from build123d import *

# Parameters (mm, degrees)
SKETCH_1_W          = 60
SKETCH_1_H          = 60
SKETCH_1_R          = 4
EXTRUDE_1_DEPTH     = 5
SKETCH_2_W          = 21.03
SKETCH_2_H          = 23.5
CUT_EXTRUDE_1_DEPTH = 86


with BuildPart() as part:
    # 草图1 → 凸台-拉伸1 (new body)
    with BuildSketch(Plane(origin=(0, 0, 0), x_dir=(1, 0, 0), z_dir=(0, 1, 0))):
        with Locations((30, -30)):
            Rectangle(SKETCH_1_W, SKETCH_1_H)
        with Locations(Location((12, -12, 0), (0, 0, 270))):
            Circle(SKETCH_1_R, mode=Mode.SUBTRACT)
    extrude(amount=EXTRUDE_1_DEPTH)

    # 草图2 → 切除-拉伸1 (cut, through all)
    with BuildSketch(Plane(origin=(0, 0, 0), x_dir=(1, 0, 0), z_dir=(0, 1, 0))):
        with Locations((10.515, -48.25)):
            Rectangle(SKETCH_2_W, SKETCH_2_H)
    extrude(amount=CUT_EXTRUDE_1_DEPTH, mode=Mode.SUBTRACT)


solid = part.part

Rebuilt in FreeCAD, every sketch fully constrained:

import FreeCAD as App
import Part
import Sketcher
from FreeCAD import Vector

doc = App.newDocument("Part")
body = doc.addObject("PartDesign::Body", "Body")

# Sketch on XZ plane
sketch1 = body.newObject("Sketcher::SketchObject", "Sketch")
sketch1.AttachmentSupport = (doc.getObject("XZ_Plane"), [""])
sketch1.MapMode = "FlatFace"
sketch1.addGeometry(Part.LineSegment(Vector(0, 0, 0), Vector(0, 60, 0)), False)
sketch1.addGeometry(Part.LineSegment(Vector(0, 60, 0), Vector(60, 60, 0)), False)
sketch1.addGeometry(Part.LineSegment(Vector(60, 60, 0), Vector(60, 0, 0)), False)
sketch1.addGeometry(Part.LineSegment(Vector(60, 0, 0), Vector(0, 0, 0)), False)
sketch1.addGeometry(Part.Circle(Vector(12, 12, 0), Vector(0, 0, 1), 4), False)
sketch1.addConstraint(Sketcher.Constraint("Coincident", 0, 2, 1, 1))
sketch1.addConstraint(Sketcher.Constraint("Coincident", 1, 2, 2, 1))
sketch1.addConstraint(Sketcher.Constraint("Coincident", 2, 2, 3, 1))
sketch1.addConstraint(Sketcher.Constraint("Coincident", 3, 2, 0, 1))
sketch1.addConstraint(Sketcher.Constraint("Vertical", 0))
sketch1.addConstraint(Sketcher.Constraint("Horizontal", 1))
sketch1.addConstraint(Sketcher.Constraint("Vertical", 2))
sketch1.addConstraint(Sketcher.Constraint("Horizontal", 3))
sketch1.addConstraint(Sketcher.Constraint("Coincident", 3, 2, -1, 1))
sketch1.addConstraint(Sketcher.Constraint("Equal", 3, 0))
sketch1.addConstraint(Sketcher.Constraint("Diameter", 4, 8.0))
sketch1.addConstraint(Sketcher.Constraint("DistanceX", 1, 1, 1, 2, 60.0))
sketch1.addConstraint(Sketcher.Constraint("DistanceX", -1, 1, 4, 3, 12.0))
sketch1.addConstraint(Sketcher.Constraint("DistanceY", -1, 1, 4, 3, 12.0))
pad1 = body.newObject("PartDesign::Pad", "Pad")
pad1.Profile = sketch1
pad1.Length = 5
pad1.Reversed = True

# Sketch on XZ plane
sketch2 = body.newObject("Sketcher::SketchObject", "Sketch001")
sketch2.AttachmentSupport = (doc.getObject("XZ_Plane"), [""])
sketch2.MapMode = "FlatFace"
sketch2.addGeometry(Part.LineSegment(Vector(0, 36, 0), Vector(0, 60, 0)), False)
sketch2.addGeometry(Part.LineSegment(Vector(0, 60, 0), Vector(21, 60, 0)), False)
sketch2.addGeometry(Part.LineSegment(Vector(21, 60, 0), Vector(21, 36, 0)), False)
sketch2.addGeometry(Part.LineSegment(Vector(21, 36, 0), Vector(0, 36, 0)), False)
sketch2.addConstraint(Sketcher.Constraint("Coincident", 0, 2, 1, 1))
sketch2.addConstraint(Sketcher.Constraint("Coincident", 1, 2, 2, 1))
sketch2.addConstraint(Sketcher.Constraint("Coincident", 2, 2, 3, 1))
sketch2.addConstraint(Sketcher.Constraint("Coincident", 3, 2, 0, 1))
sketch2.addConstraint(Sketcher.Constraint("Vertical", 0))
sketch2.addConstraint(Sketcher.Constraint("Horizontal", 1))
sketch2.addConstraint(Sketcher.Constraint("Vertical", 2))
sketch2.addConstraint(Sketcher.Constraint("Horizontal", 3))
sketch2.addConstraint(Sketcher.Constraint("PointOnObject", 0, 2, -2))
sketch2.addConstraint(Sketcher.Constraint("DistanceY", 0, 1, 0, 2, 23.5))
sketch2.addConstraint(Sketcher.Constraint("DistanceY", -1, 1, 0, 2, 60.0))
sketch2.addConstraint(Sketcher.Constraint("DistanceX", 1, 1, 1, 2, 21.03))
pocket1 = body.newObject("PartDesign::Pocket", "Pocket")
pocket1.Profile = sketch2
pocket1.Type = "ThroughAll"

doc.recompute()
